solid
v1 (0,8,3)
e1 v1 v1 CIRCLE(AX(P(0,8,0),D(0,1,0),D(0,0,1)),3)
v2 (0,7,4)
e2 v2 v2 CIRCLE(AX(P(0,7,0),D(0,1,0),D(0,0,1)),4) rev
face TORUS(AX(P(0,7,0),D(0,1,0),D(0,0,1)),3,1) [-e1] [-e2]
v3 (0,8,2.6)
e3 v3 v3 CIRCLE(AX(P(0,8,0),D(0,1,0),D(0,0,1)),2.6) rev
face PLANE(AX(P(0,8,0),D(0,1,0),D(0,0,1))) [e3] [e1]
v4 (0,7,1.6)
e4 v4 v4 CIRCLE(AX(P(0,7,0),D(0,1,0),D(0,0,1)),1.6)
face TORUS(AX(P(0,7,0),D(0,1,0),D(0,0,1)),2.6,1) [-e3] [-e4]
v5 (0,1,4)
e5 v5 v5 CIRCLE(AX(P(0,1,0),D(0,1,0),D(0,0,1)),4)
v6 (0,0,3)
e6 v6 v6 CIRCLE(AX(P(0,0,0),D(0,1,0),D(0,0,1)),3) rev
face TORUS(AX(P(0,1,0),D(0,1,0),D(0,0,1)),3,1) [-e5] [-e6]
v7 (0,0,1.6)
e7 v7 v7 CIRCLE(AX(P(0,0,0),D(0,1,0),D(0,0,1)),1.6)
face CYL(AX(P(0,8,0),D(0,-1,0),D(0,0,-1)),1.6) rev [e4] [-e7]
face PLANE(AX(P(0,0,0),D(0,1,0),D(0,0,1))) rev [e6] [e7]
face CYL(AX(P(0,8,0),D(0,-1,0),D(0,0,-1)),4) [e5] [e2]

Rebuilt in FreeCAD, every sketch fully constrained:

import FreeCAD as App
import Part
import Sketcher
from FreeCAD import Vector


def edges_at(feature, points):
    """Names of the edges that pass closest to the given points."""
    edges = feature.Shape.Edges
    near = lambda p: min(range(len(edges)), key=lambda i: edges[i].distToShape(Part.Vertex(*p))[0])
    return sorted({f"Edge{near(p) + 1}" for p in points})

doc = App.newDocument("Part")
body = doc.addObject("PartDesign::Body", "Body")

sketch1 = body.newObject("Sketcher::SketchObject", "Sketch")
sketch1.AttachmentSupport = (doc.getObject("XZ_Plane"), [""])
sketch1.MapMode = "FlatFace"
sketch1.addGeometry([
    Part.Circle(Vector(0, 0, 0), Vector(0, 0, 1), 4),
    Part.Circle(Vector(0, 0, 0), Vector(0, 0, 1), 1.6),
], False)
sketch1.addConstraint([
    Sketcher.Constraint("Coincident", 0, 3, -1, 1),
    Sketcher.Constraint("Coincident", 1, 3, -1, 1),
    Sketcher.Constraint("Diameter", 0, 8.0),
    Sketcher.Constraint("Diameter", 1, 3.2),
])
pad1 = body.newObject("PartDesign::Pad", "Pad")
pad1.Profile = sketch1
pad1.Length = 8
pad1.Reversed = True
doc.recompute()

fillet = body.newObject("PartDesign::Fillet", "Fillet")
fillet.Base = (pad1, edges_at(pad1, [(-4, 0, 0), (-4, 8, 0), (-1.6, 8, 0)]))
fillet.Radius = 1

doc.recompute()
